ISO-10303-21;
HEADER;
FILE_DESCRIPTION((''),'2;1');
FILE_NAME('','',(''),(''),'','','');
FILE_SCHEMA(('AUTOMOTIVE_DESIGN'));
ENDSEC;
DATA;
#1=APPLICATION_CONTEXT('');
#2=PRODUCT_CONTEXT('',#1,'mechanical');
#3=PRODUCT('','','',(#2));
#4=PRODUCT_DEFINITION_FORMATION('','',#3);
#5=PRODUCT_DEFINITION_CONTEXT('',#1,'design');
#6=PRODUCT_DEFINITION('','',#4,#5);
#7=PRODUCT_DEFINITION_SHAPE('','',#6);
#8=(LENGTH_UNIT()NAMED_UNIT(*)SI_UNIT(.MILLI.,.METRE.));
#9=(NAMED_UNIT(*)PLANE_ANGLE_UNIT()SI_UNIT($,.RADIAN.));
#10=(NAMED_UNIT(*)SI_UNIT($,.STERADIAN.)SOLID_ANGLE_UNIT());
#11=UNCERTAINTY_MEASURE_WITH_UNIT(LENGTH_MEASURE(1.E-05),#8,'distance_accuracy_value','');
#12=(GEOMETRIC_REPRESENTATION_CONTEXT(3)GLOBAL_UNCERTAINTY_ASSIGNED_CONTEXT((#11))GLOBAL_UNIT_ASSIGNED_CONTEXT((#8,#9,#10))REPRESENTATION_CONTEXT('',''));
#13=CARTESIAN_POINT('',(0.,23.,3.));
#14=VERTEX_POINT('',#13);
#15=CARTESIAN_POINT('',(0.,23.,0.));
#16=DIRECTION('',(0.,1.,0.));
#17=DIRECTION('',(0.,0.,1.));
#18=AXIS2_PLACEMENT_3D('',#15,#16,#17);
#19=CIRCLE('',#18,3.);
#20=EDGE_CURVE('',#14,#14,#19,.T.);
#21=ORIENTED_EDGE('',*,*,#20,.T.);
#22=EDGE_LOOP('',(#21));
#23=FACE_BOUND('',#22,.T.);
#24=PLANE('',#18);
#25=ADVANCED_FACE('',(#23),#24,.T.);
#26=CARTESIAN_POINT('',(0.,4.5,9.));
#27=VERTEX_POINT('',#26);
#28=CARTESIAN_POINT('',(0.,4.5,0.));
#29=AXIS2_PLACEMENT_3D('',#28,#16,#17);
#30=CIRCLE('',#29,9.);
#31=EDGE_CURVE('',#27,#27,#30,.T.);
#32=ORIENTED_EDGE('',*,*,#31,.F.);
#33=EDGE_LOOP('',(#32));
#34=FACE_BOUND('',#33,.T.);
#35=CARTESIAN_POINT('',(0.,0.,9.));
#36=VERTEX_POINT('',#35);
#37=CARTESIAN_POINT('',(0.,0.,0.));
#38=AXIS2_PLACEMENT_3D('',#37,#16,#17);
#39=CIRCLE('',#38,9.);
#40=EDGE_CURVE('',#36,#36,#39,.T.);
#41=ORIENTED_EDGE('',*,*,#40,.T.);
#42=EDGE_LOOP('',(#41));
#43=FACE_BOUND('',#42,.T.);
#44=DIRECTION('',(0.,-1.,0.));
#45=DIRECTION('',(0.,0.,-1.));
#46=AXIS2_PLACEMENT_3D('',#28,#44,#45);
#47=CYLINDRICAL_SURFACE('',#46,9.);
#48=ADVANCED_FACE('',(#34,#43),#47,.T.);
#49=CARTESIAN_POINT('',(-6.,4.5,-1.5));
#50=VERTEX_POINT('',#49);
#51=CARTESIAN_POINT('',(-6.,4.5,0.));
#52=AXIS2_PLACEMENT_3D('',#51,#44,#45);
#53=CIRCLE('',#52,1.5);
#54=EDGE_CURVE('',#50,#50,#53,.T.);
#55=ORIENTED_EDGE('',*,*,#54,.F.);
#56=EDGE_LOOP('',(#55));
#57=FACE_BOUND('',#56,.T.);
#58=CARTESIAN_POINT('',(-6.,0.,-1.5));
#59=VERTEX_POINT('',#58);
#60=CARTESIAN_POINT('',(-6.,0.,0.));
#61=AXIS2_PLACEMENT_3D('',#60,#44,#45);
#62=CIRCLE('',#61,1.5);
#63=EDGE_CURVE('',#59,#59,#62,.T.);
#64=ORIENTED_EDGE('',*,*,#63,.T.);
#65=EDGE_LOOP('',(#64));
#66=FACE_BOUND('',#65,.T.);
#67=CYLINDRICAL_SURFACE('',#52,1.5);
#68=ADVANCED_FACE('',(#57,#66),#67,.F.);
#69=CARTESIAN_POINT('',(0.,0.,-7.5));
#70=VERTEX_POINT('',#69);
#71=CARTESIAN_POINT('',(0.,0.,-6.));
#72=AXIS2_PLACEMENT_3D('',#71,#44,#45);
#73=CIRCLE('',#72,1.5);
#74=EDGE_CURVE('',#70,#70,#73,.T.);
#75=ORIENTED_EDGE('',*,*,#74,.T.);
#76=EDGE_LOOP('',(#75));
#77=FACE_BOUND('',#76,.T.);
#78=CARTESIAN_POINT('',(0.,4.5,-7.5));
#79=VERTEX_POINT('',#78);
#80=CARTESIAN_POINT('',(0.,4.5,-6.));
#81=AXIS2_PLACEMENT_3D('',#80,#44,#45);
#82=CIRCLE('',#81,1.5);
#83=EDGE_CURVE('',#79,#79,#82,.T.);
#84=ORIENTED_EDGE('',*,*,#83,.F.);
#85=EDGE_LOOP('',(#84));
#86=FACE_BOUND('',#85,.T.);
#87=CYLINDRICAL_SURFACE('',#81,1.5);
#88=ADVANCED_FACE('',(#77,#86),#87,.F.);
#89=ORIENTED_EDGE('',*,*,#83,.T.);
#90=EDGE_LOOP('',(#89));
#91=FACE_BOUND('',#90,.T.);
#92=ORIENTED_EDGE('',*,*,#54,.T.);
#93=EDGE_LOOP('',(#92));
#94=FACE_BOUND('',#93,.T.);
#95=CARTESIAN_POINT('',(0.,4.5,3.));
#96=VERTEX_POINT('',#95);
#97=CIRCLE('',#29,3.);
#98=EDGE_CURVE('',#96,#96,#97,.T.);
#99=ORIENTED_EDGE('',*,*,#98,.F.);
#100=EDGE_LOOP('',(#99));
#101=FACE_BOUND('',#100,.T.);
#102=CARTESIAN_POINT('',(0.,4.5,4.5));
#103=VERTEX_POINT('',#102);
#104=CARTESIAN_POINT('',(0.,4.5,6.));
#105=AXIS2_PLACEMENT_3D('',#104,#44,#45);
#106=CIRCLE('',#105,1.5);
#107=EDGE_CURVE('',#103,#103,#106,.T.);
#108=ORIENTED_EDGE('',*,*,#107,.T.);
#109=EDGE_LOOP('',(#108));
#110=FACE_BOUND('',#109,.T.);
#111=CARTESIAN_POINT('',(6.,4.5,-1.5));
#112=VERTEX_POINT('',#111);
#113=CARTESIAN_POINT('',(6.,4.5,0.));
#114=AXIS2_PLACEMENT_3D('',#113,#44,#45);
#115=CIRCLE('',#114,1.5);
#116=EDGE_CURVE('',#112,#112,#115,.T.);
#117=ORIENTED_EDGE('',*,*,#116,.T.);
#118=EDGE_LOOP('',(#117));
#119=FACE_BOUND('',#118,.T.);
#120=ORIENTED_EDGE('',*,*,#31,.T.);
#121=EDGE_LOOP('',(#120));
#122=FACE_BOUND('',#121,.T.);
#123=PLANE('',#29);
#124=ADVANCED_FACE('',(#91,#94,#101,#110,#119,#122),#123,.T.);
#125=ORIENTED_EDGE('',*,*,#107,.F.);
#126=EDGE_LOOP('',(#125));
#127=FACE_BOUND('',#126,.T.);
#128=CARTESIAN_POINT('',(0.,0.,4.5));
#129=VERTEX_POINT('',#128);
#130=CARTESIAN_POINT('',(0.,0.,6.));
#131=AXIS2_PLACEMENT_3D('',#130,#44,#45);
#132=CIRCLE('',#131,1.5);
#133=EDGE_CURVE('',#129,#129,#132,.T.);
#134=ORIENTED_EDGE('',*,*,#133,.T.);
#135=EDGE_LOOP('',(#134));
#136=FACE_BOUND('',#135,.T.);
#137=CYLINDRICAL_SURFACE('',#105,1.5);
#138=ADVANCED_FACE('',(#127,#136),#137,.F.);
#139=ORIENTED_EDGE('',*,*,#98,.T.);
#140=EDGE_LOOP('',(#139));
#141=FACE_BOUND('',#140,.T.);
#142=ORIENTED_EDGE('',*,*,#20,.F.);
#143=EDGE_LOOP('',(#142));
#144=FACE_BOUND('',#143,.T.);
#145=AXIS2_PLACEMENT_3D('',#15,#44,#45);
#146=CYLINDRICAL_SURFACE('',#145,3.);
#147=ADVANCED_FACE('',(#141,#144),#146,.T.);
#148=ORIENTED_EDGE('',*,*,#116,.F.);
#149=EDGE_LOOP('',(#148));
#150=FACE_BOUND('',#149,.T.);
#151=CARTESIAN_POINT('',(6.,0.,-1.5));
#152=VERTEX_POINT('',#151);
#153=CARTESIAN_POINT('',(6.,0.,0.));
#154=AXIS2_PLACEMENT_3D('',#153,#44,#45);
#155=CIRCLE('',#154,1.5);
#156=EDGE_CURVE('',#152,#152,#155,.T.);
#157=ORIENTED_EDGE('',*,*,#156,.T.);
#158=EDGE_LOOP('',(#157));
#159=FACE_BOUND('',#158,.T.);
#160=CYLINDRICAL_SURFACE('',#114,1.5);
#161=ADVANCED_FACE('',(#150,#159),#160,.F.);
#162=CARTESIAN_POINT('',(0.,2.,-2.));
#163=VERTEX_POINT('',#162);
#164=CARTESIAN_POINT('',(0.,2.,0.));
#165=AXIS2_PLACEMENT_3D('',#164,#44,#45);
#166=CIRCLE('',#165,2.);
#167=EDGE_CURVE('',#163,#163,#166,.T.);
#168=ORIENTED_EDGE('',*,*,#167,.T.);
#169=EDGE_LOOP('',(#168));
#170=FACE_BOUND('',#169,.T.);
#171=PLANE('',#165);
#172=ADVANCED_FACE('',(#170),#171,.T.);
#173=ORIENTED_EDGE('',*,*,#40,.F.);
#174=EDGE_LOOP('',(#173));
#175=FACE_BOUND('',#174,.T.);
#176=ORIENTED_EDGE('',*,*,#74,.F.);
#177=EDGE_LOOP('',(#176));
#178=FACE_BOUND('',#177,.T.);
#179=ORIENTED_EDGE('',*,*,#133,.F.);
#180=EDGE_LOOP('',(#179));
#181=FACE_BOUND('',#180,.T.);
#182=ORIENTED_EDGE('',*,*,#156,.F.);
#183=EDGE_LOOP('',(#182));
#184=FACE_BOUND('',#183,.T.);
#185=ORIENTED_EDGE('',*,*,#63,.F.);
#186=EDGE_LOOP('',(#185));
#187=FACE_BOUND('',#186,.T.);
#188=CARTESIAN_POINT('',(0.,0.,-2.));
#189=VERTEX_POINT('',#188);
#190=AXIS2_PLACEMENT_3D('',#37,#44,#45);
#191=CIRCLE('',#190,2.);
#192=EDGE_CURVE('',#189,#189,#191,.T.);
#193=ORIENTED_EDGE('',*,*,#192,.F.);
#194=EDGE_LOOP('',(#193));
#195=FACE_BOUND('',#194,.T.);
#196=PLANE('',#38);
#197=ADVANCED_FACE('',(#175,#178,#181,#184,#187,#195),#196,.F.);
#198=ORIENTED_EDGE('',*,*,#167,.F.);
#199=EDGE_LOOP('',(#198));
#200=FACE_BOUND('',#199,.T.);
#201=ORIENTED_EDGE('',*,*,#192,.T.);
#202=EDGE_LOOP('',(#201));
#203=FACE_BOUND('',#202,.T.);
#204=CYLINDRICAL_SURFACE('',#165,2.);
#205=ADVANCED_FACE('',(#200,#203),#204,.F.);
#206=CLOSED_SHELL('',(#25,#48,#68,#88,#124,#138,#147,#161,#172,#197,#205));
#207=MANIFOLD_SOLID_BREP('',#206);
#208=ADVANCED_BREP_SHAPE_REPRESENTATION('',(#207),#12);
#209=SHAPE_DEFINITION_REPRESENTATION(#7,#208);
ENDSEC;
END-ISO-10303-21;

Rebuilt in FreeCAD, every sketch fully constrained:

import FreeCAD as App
import Part
import Sketcher

V = App.Vector

doc = App.newDocument("Part")
body = doc.addObject("PartDesign::Body", "Body")

sketch1 = body.newObject("Sketcher::SketchObject", "Sketch")
sketch1.AttachmentSupport = (doc.getObject("XZ_Plane"), [""])
sketch1.MapMode = "FlatFace"
sketch1.addGeometry(Part.Circle(V(0, 0, 0), V(0, 0, 1), 9), False)
sketch1.addConstraint(Sketcher.Constraint("Coincident", 0, 3, -1, 1))
sketch1.addConstraint(Sketcher.Constraint("Diameter", 0, 18.0))
pad1 = body.newObject("PartDesign::Pad", "Pad")
pad1.Profile = sketch1
pad1.Length = 4.5
pad1.Reversed = True

sketch2 = body.newObject("Sketcher::SketchObject", "Sketch001")
sketch2.AttachmentSupport = (doc.getObject("XZ_Plane"), [""])
sketch2.MapMode = "FlatFace"
sketch2.addGeometry(Part.Circle(V(0, 0, 0), V(0, 0, 1), 2), False)
sketch2.addConstraint(Sketcher.Constraint("Coincident", 0, 3, -1, 1))
sketch2.addConstraint(Sketcher.Constraint("Diameter", 0, 4.0))
pocket1 = body.newObject("PartDesign::Pocket", "Pocket")
pocket1.Profile = sketch2
pocket1.Length = 2

sketch3 = body.newObject("Sketcher::SketchObject", "Sketch002")
sketch3.AttachmentSupport = (doc.getObject("XZ_Plane"), [""])
sketch3.MapMode = "FlatFace"
sketch3.addGeometry(Part.Circle(V(0, 6, 0), V(0, 0, 1), 1.5), False)
sketch3.addGeometry(Part.Circle(V(6, 0, 0), V(0, 0, 1), 1.5), False)
sketch3.addGeometry(Part.Circle(V(0, -6, 0), V(0, 0, 1), 1.5), False)
sketch3.addGeometry(Part.Circle(V(-6, 0, 0), V(0, 0, 1), 1.5), False)
sketch3.addConstraint(Sketcher.Constraint("Equal", 0, 1))
sketch3.addConstraint(Sketcher.Constraint("Equal", 1, 2))
sketch3.addConstraint(Sketcher.Constraint("Equal", 2, 3))
sketch3.addConstraint(Sketcher.Constraint("Symmetric", 0, 3, 2, 3, -1, 1))
sketch3.addConstraint(Sketcher.Constraint("Symmetric", 1, 3, 3, 3, -1, 1))
sketch3.addConstraint(Sketcher.Constraint("PointOnObject", 0, 3, -2))
sketch3.addConstraint(Sketcher.Constraint("PointOnObject", 1, 3, -1))
sketch3.addConstraint(Sketcher.Constraint("Diameter", 0, 3.0))
sketch3.addConstraint(Sketcher.Constraint("DistanceY", -1, 1, 0, 3, 6.0))
sketch3.addConstraint(Sketcher.Constraint("DistanceX", -1, 1, 1, 3, 6.0))
pocket2 = body.newObject("PartDesign::Pocket", "Pocket001")
pocket2.Profile = sketch3
pocket2.Type = "ThroughAll"

sketch4 = body.newObject("Sketcher::SketchObject", "Sketch003")
sketch4.AttachmentSupport = (doc.getObject("XZ_Plane"), [""])
sketch4.MapMode = "FlatFace"
sketch4.AttachmentOffset = App.Placement(V(0, 0, -4.5), App.Rotation())
sketch4.addGeometry(Part.Circle(V(0, 0, 0), V(0, 0, 1), 3), False)
sketch4.addConstraint(Sketcher.Constraint("Coincident", 0, 3, -1, 1))
sketch4.addConstraint(Sketcher.Constraint("Diameter", 0, 6.0))
pad2 = body.newObject("PartDesign::Pad", "Pad001")
pad2.Profile = sketch4
pad2.Length = 18.5
pad2.Reversed = True

doc.recompute()
